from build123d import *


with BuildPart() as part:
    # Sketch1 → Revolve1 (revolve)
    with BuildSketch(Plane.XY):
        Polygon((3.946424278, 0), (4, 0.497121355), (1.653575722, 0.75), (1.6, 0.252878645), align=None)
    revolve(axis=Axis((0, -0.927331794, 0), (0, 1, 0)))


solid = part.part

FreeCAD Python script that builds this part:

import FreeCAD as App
import Part
import Sketcher
Q = App.Units.Quantity

doc = App.newDocument("Part")
body = doc.addObject("PartDesign::Body", "Body")

sketch1 = body.newObject("Sketcher::SketchObject", "Sketch")
sketch1.AttachmentSupport = (doc.getObject("XY_Plane"), [""])
sketch1.MapMode = "FlatFace"
sketch1.addGeometry([
    Part.LineSegment(App.Vector(3.946424, 0, 0), App.Vector(4, 0.497121, 0)),
    Part.LineSegment(App.Vector(4, 0.497121, 0), App.Vector(1.653576, 0.75, 0)),
    Part.LineSegment(App.Vector(1.653576, 0.75, 0), App.Vector(1.6, 0.252879, 0)),
    Part.LineSegment(App.Vector(1.6, 0.252879, 0), App.Vector(3.946424, 0, 0)),
], False)
sketch1.addConstraint([
    Sketcher.Constraint("Coincident", 0, 2, 1, 1),
    Sketcher.Constraint("Coincident", 1, 2, 2, 1),
    Sketcher.Constraint("Coincident", 2, 2, 3, 1),
    Sketcher.Constraint("Coincident", 3, 2, 0, 1),
    Sketcher.Constraint("PointOnObject", 3, 2, -1),
    Sketcher.Constraint("Perpendicular", 0, 1),
    Sketcher.Constraint("Perpendicular", 1, 2),
    Sketcher.Constraint("Perpendicular", 2, 3),
    Sketcher.Constraint("DistanceX", -1, 1, 0, 2, Q("4 mm")),
    Sketcher.Constraint("Distance", 0, Q("0.5 mm")),
    Sketcher.Constraint("DistanceX", -1, 1, 2, 2, Q("1.6 mm")),
    Sketcher.Constraint("DistanceY", -1, 1, 1, 2, Q("0.75 mm")),
])
revolution = body.newObject("PartDesign::Revolution", "Revolution")
revolution.Profile = sketch1
revolution.ReferenceAxis = (sketch1, ["V_Axis"])
revolution.Angle = 360

doc.recompute()
